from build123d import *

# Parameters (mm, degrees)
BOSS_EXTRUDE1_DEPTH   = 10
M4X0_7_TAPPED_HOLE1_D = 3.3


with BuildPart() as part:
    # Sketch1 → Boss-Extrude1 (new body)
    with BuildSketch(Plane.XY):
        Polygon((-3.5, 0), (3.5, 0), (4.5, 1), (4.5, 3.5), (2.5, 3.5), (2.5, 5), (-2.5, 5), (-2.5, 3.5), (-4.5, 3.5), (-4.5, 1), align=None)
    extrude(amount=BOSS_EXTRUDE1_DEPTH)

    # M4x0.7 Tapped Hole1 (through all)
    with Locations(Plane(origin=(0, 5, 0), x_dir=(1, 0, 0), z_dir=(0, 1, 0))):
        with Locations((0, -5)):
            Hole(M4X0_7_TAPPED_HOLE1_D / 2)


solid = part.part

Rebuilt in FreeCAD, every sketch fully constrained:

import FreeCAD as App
import Part
import Sketcher
from FreeCAD import Vector


def add_polygon(sketch, points):
    """Adds a closed chain of lines whose ends are joined by coincident constraints."""
    first, n = sketch.GeometryCount, len(points)
    for a, b in zip(points, points[1:] + points[:1]):
        sketch.addGeometry(Part.LineSegment(App.Vector(*a, 0), App.Vector(*b, 0)), False)
    for i in range(n):
        sketch.addConstraint(Sketcher.Constraint("Coincident", first + i, 2, first + (i + 1) % n, 1))

doc = App.newDocument("Part")
body = doc.addObject("PartDesign::Body", "Body")

sketch1 = doc.addObject("Sketcher::SketchObject", "Sketch")
body.addObject(sketch1)
sketch1.AttachmentSupport = (doc.XY_Plane, [""])
sketch1.MapMode = "FlatFace"
add_polygon(sketch1, [(-3.5, 0), (3.5, 0), (4.5, 1), (4.5, 3.5), (2.5, 3.5), (2.5, 5), (-2.5, 5), (-2.5, 3.5), (-4.5, 3.5), (-4.5, 1)])
sketch1.addConstraint([
    Sketcher.Constraint("Horizontal", 0),
    Sketcher.Constraint("Vertical", 2),
    Sketcher.Constraint("Horizontal", 3),
    Sketcher.Constraint("Vertical", 4),
    Sketcher.Constraint("Horizontal", 5),
    Sketcher.Constraint("Vertical", 6),
    Sketcher.Constraint("Horizontal", 7),
    Sketcher.Constraint("Vertical", 8),
    Sketcher.Constraint("Symmetric", 0, 2, 9, 2, -1, 1),
    Sketcher.Constraint("Symmetric", 3, 2, 6, 2, -2),
    Sketcher.Constraint("Symmetric", 1, 2, 8, 2, -2),
    Sketcher.Constraint("Perpendicular", 1, 9),
    Sketcher.Constraint("DistanceX", 0, 1, 0, 2, 7.0),
    Sketcher.Constraint("DistanceX", 3, 2, 3, 1, 2.0),
    Sketcher.Constraint("DistanceX", 5, 2, 5, 1, 5.0),
    Sketcher.Constraint("DistanceY", 2, 1, 2, 2, 2.5),
    Sketcher.Constraint("DistanceY", 4, 1, 4, 2, 1.5),
])
pad1 = doc.addObject("PartDesign::Pad", "Pad")
body.addObject(pad1)
pad1.Profile = sketch1
pad1.Length = 10

sketch2 = doc.addObject("Sketcher::SketchObject", "Sketch001")
body.addObject(sketch2)
sketch2.AttachmentSupport = (doc.XZ_Plane, [""])
sketch2.MapMode = "FlatFace"
sketch2.AttachmentOffset = App.Placement(Vector(0, 0, -5), App.Rotation())
sketch2.addGeometry(Part.Circle(Vector(0, 5, 0), Vector(0, 0, 1), 1.6), False)
sketch2.addConstraint([
    Sketcher.Constraint("PointOnObject", 0, 3, -2),
    Sketcher.Constraint("Diameter", 0, 3.3),
    Sketcher.Constraint("DistanceY", -1, 1, 0, 3, 5.0),
])
doc.recompute()
hole = doc.addObject("PartDesign::Hole", "Hole")
body.addObject(hole)
hole.Profile = sketch2
hole.ThreadType = "None"
hole.Diameter = 3.3
hole.DepthType = "ThroughAll"
hole.Reversed = True

doc.recompute()
